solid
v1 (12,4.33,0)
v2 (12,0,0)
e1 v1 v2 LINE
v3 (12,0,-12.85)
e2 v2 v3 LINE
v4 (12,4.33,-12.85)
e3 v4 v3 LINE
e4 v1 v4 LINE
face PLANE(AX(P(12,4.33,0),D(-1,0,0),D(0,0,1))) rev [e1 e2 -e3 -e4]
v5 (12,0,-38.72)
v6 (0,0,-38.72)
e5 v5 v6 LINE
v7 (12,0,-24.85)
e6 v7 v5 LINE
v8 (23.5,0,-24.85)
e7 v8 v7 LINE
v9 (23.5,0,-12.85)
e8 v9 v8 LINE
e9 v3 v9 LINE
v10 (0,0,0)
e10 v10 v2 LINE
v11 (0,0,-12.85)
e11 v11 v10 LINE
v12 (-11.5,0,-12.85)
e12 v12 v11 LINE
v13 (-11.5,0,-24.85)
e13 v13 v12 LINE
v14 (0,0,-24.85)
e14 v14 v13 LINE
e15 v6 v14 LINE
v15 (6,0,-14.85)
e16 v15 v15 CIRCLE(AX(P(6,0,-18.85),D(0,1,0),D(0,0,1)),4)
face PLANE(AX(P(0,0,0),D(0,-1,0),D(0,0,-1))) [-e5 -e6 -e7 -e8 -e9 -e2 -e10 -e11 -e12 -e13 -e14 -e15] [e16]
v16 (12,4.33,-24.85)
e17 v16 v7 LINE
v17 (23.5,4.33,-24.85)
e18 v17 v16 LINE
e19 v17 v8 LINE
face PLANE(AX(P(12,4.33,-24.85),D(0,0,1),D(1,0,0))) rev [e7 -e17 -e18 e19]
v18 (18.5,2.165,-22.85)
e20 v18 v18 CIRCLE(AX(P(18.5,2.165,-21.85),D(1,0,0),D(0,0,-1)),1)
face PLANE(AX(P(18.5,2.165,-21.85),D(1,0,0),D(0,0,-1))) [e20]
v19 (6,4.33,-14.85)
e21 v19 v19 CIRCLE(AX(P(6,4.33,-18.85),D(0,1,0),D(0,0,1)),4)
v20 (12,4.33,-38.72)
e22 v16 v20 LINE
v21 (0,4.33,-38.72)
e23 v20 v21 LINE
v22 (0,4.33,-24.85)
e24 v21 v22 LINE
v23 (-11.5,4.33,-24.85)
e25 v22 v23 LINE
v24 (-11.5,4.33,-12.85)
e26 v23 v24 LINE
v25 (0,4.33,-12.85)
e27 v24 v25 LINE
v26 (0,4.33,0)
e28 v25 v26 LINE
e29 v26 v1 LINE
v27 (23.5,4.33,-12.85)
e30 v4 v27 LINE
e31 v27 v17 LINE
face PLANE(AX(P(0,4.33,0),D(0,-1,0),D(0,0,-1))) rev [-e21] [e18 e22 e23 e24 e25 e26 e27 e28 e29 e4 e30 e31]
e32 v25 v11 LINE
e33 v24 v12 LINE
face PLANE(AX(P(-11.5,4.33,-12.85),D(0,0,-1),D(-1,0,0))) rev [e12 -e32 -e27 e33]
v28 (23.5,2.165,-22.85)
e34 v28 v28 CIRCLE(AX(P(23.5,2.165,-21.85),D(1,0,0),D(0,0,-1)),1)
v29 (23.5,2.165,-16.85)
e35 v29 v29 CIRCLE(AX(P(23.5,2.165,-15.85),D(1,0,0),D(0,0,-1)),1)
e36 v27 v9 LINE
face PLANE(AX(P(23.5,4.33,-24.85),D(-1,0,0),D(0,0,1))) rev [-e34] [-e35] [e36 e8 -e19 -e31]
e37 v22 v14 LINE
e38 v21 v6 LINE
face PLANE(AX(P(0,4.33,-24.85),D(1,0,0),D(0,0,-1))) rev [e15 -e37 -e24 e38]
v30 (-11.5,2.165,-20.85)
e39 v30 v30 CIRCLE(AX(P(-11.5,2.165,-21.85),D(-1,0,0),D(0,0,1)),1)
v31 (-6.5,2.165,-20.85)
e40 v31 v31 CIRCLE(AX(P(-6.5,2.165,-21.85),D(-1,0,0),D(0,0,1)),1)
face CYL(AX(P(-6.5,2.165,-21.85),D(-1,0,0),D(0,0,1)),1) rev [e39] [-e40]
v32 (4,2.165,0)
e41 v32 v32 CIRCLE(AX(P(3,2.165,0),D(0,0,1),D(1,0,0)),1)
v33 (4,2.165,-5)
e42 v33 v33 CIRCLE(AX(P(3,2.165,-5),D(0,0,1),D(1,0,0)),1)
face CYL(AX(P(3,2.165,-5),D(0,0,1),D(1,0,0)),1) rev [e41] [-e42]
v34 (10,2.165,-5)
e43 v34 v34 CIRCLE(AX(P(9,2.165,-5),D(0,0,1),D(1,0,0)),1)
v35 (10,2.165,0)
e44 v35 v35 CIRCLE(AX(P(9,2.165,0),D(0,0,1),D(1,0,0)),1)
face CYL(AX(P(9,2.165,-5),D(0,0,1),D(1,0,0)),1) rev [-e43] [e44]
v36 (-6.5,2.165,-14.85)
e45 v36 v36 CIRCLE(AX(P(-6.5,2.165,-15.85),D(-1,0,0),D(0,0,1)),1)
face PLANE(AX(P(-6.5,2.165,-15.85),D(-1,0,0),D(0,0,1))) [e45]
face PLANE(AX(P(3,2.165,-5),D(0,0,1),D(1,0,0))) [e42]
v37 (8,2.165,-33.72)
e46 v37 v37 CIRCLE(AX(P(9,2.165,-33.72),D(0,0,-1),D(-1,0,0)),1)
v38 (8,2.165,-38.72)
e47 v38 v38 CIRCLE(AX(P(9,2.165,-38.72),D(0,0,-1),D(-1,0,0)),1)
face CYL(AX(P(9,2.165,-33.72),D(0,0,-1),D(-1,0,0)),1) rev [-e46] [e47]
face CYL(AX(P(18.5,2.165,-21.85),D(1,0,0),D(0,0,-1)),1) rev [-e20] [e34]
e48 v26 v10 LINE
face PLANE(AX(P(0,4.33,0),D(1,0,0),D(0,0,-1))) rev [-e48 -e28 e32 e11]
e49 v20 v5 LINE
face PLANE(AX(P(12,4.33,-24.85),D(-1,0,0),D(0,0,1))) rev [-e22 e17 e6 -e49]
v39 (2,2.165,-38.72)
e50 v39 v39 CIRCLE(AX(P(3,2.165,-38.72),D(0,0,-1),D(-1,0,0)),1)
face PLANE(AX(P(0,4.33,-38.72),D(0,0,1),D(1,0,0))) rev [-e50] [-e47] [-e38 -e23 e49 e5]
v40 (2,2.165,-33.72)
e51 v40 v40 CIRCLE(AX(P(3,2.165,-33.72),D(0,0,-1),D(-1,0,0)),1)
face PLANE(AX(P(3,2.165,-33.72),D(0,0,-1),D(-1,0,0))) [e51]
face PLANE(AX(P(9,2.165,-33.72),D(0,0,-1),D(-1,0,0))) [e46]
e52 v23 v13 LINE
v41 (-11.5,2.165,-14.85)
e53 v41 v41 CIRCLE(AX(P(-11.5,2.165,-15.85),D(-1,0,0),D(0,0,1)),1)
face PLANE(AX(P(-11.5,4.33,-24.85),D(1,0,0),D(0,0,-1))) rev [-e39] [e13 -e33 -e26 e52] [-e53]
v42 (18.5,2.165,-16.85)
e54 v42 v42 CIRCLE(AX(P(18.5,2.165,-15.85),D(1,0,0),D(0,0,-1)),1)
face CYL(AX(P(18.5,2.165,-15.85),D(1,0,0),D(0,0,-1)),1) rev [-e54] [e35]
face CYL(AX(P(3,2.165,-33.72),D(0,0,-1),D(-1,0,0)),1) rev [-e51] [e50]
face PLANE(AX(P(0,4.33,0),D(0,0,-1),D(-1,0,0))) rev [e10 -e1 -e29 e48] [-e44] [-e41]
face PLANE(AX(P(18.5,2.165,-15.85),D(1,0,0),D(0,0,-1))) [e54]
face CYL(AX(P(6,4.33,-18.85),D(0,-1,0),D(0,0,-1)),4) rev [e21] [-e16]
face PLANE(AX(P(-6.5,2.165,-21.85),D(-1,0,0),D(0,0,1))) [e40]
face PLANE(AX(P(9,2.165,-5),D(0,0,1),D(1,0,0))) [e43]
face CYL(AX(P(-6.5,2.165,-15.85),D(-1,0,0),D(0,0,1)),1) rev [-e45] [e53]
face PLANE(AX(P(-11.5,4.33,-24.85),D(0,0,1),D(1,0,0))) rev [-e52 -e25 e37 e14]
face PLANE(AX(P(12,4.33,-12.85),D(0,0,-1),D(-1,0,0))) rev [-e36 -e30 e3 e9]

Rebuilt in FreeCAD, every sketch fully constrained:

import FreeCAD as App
import Part
import Sketcher


def add_polygon(sketch, points):
    """Adds a closed chain of lines whose ends are joined by coincident constraints."""
    first, n = sketch.GeometryCount, len(points)
    for a, b in zip(points, points[1:] + points[:1]):
        sketch.addGeometry(Part.LineSegment(App.Vector(*a, 0), App.Vector(*b, 0)), False)
    for i in range(n):
        sketch.addConstraint(Sketcher.Constraint("Coincident", first + i, 2, first + (i + 1) % n, 1))

doc = App.newDocument("Part")
body = doc.addObject("PartDesign::Body", "Body")

# Sketch on XZ plane
sketch1 = doc.addObject("Sketcher::SketchObject", "Sketch")
body.addObject(sketch1)
sketch1.AttachmentSupport = (doc.XZ_Plane, [""])
sketch1.MapMode = "FlatFace"
add_polygon(sketch1, [(0, 0), (12, 0), (12, -12.8), (23.5, -12.8), (23.5, -24.9), (12, -24.9), (12, -38.7), (0, -38.7), (0, -24.9), (-11.5, -24.9), (-11.5, -12.8), (0, -12.8)])  # lines 0-11
sketch1.addGeometry(Part.Circle(App.Vector(6, -18.9, 0), App.Vector(0, 0, 1), 4), False)  # 12
sketch1.addConstraint([
    Sketcher.Constraint("Horizontal", 0),
    Sketcher.Constraint("Vertical", 1),
    Sketcher.Constraint("Horizontal", 2),
    Sketcher.Constraint("Vertical", 3),
    Sketcher.Constraint("Horizontal", 4),
    Sketcher.Constraint("Vertical", 5),
    Sketcher.Constraint("Horizontal", 6),
    Sketcher.Constraint("Vertical", 7),
    Sketcher.Constraint("Horizontal", 8),
    Sketcher.Constraint("Vertical", 9),
    Sketcher.Constraint("Horizontal", 10),
    Sketcher.Constraint("Vertical", 11),
    Sketcher.Constraint("Coincident", 11, 2, -1, 1),
    Sketcher.Constraint("PointOnObject", 6, 2, -2),
    Sketcher.Constraint("Horizontal", 4, 2, 7, 2),
    Sketcher.Constraint("Horizontal", 2, 2, 9, 2),
    Sketcher.Constraint("Vertical", 1, 2, 4, 2),
    Sketcher.Constraint("Equal", 4, 8),
    Sketcher.Constraint("Equal", 6, 3),
    Sketcher.Constraint("Diameter", 12, 8.0),
    Sketcher.Constraint("DistanceX", 0, 1, 0, 2, 12.0),
    Sketcher.Constraint("DistanceX", 2, 1, 2, 2, 11.5),
    Sketcher.Constraint("DistanceX", -1, 1, 12, 3, 6.0),
    Sketcher.Constraint("DistanceY", 12, 3, 1, 2, 6.0),
    Sketcher.Constraint("DistanceY", 1, 2, 1, 1, 12.85),
    Sketcher.Constraint("DistanceY", 5, 2, 5, 1, 13.87),
])
pad1 = doc.addObject("PartDesign::Pad", "Pad")
body.addObject(pad1)
pad1.Profile = sketch1
pad1.Length = 4.33
pad1.Reversed = True

# Sketch on XY plane
sketch2 = doc.addObject("Sketcher::SketchObject", "Sketch001")
body.addObject(sketch2)
sketch2.AttachmentSupport = (doc.XY_Plane, [""])
sketch2.MapMode = "FlatFace"
sketch2.addGeometry([
    Part.Circle(App.Vector(3, 2.2, 0), App.Vector(0, 0, 1), 1),
    Part.Circle(App.Vector(9, 2.2, 0), App.Vector(0, 0, 1), 1),
], False)
sketch2.addConstraint([
    Sketcher.Constraint("Equal", 0, 1),
    Sketcher.Constraint("Horizontal", 0, 3, 1, 3),
    Sketcher.Constraint("Diameter", 0, 2.0),
    Sketcher.Constraint("DistanceX", -1, 1, 0, 3, 3.0),
    Sketcher.Constraint("DistanceX", -1, 1, 1, 3, 9.0),
    Sketcher.Constraint("DistanceY", -1, 1, 0, 3, 2.165),
])
pocket1 = doc.addObject("PartDesign::Pocket", "Pocket")
body.addObject(pocket1)
pocket1.Profile = sketch2
pocket1.Length = 5

# Sketch on YZ plane
sketch3 = doc.addObject("Sketcher::SketchObject", "Sketch002")
body.addObject(sketch3)
sketch3.AttachmentSupport = (doc.YZ_Plane, [""])
sketch3.MapMode = "FlatFace"
sketch3.AttachmentOffset = App.Placement(App.Vector(0, 0, -11.5), App.Rotation())
sketch3.addGeometry([
    Part.Circle(App.Vector(2.2, -21.9, 0), App.Vector(0, 0, 1), 1),
    Part.Circle(App.Vector(2.2, -15.8, 0), App.Vector(0, 0, 1), 1),
], False)
sketch3.addConstraint([
    Sketcher.Constraint("Equal", 0, 1),
    Sketcher.Constraint("Vertical", 0, 3, 1, 3),
    Sketcher.Constraint("Diameter", 0, 2.0),
    Sketcher.Constraint("DistanceY", 0, 3, 1, 3, 6.0),
    Sketcher.Constraint("DistanceY", 0, 3, -1, 1, 21.85),
    Sketcher.Constraint("DistanceX", -1, 1, 0, 3, 2.165),
])
pocket2 = doc.addObject("PartDesign::Pocket", "Pocket001")
body.addObject(pocket2)
pocket2.Profile = sketch3
pocket2.Length = 5
pocket2.Reversed = True

# Sketch on XY plane
sketch4 = doc.addObject("Sketcher::SketchObject", "Sketch003")
body.addObject(sketch4)
sketch4.AttachmentSupport = (doc.XY_Plane, [""])
sketch4.MapMode = "FlatFace"
sketch4.AttachmentOffset = App.Placement(App.Vector(0, 0, -38.72), App.Rotation())
sketch4.addGeometry([
    Part.Circle(App.Vector(9, 2.2, 0), App.Vector(0, 0, 1), 1),
    Part.Circle(App.Vector(3, 2.2, 0), App.Vector(0, 0, 1), 1),
], False)
sketch4.addConstraint([
    Sketcher.Constraint("Equal", 0, 1),
    Sketcher.Constraint("Horizontal", 0, 3, 1, 3),
    Sketcher.Constraint("Diameter", 0, 2.0),
    Sketcher.Constraint("DistanceX", -1, 1, 0, 3, 9.0),
    Sketcher.Constraint("DistanceX", -1, 1, 1, 3, 3.0),
    Sketcher.Constraint("DistanceY", -1, 1, 0, 3, 2.165),
])
pocket3 = doc.addObject("PartDesign::Pocket", "Pocket002")
body.addObject(pocket3)
pocket3.Profile = sketch4
pocket3.Length = 5
pocket3.Reversed = True

# Sketch on YZ plane
sketch5 = doc.addObject("Sketcher::SketchObject", "Sketch004")
body.addObject(sketch5)
sketch5.AttachmentSupport = (doc.YZ_Plane, [""])
sketch5.MapMode = "FlatFace"
sketch5.AttachmentOffset = App.Placement(App.Vector(0, 0, 23.5), App.Rotation())
sketch5.addGeometry([
    Part.Circle(App.Vector(2.2, -15.8, 0), App.Vector(0, 0, 1), 1),
    Part.Circle(App.Vector(2.2, -21.9, 0), App.Vector(0, 0, 1), 1),
], False)
sketch5.addConstraint([
    Sketcher.Constraint("Equal", 0, 1),
    Sketcher.Constraint("Vertical", 0, 3, 1, 3),
    Sketcher.Constraint("Diameter", 0, 2.0),
    Sketcher.Constraint("DistanceY", 1, 3, 0, 3, 6.0),
    Sketcher.Constraint("DistanceY", 0, 3, -1, 1, 15.85),
    Sketcher.Constraint("DistanceX", -1, 1, 0, 3, 2.165),
])
pocket4 = doc.addObject("PartDesign::Pocket", "Pocket003")
body.addObject(pocket4)
pocket4.Profile = sketch5
pocket4.Length = 5

doc.recompute()
